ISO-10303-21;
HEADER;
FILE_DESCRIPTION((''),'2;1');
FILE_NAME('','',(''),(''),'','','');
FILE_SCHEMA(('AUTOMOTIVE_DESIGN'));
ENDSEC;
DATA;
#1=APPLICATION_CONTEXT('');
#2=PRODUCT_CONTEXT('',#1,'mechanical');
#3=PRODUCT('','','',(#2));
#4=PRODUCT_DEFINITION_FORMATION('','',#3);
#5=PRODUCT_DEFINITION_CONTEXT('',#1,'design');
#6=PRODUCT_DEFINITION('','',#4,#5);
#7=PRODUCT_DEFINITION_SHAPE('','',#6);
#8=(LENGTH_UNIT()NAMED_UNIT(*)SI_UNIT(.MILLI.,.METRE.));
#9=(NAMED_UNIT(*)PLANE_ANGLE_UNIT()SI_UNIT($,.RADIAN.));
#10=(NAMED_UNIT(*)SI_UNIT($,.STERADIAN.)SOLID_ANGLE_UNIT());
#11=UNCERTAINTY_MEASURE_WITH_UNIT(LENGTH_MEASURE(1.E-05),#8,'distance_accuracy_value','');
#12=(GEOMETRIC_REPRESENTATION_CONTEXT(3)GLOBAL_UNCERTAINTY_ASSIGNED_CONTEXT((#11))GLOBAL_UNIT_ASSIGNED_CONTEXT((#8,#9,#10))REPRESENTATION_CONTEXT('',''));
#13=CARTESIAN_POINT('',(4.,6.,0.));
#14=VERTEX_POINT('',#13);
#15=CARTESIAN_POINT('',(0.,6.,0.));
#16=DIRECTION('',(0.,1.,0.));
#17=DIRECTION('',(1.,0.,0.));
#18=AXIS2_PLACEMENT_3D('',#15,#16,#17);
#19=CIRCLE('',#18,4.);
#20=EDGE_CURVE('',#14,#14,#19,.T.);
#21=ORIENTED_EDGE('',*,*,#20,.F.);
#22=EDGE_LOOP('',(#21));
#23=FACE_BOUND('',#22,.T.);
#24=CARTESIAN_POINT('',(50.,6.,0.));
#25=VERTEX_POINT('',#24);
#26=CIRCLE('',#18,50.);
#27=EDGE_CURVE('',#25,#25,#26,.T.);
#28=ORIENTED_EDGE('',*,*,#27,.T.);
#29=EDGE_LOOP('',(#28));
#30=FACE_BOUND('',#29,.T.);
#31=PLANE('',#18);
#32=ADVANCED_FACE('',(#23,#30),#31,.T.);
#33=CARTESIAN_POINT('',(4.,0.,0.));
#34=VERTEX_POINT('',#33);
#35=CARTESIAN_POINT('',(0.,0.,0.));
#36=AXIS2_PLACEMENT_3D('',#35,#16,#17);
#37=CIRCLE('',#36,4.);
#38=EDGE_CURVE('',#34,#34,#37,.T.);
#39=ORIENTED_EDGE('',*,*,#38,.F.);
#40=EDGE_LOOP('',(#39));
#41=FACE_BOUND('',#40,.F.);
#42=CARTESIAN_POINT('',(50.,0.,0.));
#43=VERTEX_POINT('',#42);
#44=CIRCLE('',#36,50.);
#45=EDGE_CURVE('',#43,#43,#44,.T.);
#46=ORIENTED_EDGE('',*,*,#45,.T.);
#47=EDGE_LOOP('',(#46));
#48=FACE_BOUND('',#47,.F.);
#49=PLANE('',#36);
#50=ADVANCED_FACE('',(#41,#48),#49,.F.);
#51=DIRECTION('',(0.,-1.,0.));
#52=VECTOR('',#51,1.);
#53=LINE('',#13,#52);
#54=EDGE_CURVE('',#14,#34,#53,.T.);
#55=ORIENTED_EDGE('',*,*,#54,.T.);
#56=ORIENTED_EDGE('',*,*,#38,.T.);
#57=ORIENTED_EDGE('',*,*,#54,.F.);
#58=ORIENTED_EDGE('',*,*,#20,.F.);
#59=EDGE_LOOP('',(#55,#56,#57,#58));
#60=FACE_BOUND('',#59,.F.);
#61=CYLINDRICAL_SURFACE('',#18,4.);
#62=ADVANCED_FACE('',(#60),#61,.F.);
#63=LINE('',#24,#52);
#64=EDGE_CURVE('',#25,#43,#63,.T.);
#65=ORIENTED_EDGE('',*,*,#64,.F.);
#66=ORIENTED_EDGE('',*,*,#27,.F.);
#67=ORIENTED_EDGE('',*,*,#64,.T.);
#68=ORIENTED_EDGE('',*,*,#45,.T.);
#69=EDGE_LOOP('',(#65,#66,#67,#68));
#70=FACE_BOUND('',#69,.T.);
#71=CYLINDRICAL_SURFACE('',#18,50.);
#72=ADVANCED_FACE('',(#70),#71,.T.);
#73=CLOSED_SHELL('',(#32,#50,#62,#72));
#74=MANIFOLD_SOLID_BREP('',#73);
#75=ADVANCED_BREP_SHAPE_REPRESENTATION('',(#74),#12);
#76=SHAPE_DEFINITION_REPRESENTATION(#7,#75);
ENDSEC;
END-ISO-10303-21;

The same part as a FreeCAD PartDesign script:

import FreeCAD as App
import Part
import Sketcher

V = App.Vector

doc = App.newDocument("Part")
body = doc.addObject("PartDesign::Body", "Body")

# Sketch on XZ plane
sketch1 = doc.addObject("Sketcher::SketchObject", "Sketch")
body.addObject(sketch1)
sketch1.AttachmentSupport = (doc.XZ_Plane, [""])
sketch1.MapMode = "FlatFace"
sketch1.addGeometry(Part.Circle(V(0, 0, 0), V(0, 0, 1), 25), False)
sketch1.addConstraint([
    Sketcher.Constraint("Coincident", 0, 3, -1, 1),
    Sketcher.Constraint("Diameter", 0, 50.0),
])
pad1 = doc.addObject("PartDesign::Pad", "Pad")
body.addObject(pad1)
pad1.Profile = sketch1
pad1.Length = 6
pad1.Reversed = True

# Sketch on XZ plane
sketch2 = doc.addObject("Sketcher::SketchObject", "Sketch001")
body.addObject(sketch2)
sketch2.AttachmentSupport = (doc.XZ_Plane, [""])
sketch2.MapMode = "FlatFace"
sketch2.AttachmentOffset = App.Placement(V(0, 0, -6), App.Rotation())
sketch2.addGeometry(Part.Circle(V(0, 0, 0), V(0, 0, 1), 4), False)
sketch2.addConstraint([
    Sketcher.Constraint("Coincident", 0, 3, -1, 1),
    Sketcher.Constraint("Diameter", 0, 8.0),
])
pocket1 = doc.addObject("PartDesign::Pocket", "Pocket")
body.addObject(pocket1)
pocket1.Profile = sketch2
pocket1.Length = 6
pocket1.Reversed = True

# Sketch on XZ plane
sketch3 = doc.addObject("Sketcher::SketchObject", "Sketch002")
body.addObject(sketch3)
sketch3.AttachmentSupport = (doc.XZ_Plane, [""])
sketch3.MapMode = "FlatFace"
sketch3.addGeometry([
    Part.Circle(V(0, 0, 0), V(0, 0, 1), 45),
    Part.Circle(V(0, 0, 0), V(0, 0, 1), 25),
], False)
sketch3.addConstraint([
    Sketcher.Constraint("Coincident", 0, 3, -1, 1),
    Sketcher.Constraint("Coincident", 1, 3, -1, 1),
    Sketcher.Constraint("Diameter", 0, 90.0),
    Sketcher.Constraint("Diameter", 1, 50.0),
])
pad2 = doc.addObject("PartDesign::Pad", "Pad001")
body.addObject(pad2)
pad2.Profile = sketch3
pad2.Length = 6
pad2.Reversed = True

# Sketch on XZ plane
sketch4 = doc.addObject("Sketcher::SketchObject", "Sketch003")
body.addObject(sketch4)
sketch4.AttachmentSupport = (doc.XZ_Plane, [""])
sketch4.MapMode = "FlatFace"
sketch4.AttachmentOffset = App.Placement(V(0, 0, -6), App.Rotation())
sketch4.addGeometry([
    Part.Circle(V(0, 0, 0), V(0, 0, 1), 50),
    Part.Circle(V(0, 0, 0), V(0, 0, 1), 45),
], False)
sketch4.addConstraint([
    Sketcher.Constraint("Coincident", 0, 3, -1, 1),
    Sketcher.Constraint("Coincident", 1, 3, -1, 1),
    Sketcher.Constraint("Diameter", 0, 100.0),
    Sketcher.Constraint("Diameter", 1, 90.0),
])
pad3 = doc.addObject("PartDesign::Pad", "Pad002")
body.addObject(pad3)
pad3.Profile = sketch4
pad3.Length = 6

doc.recompute()
